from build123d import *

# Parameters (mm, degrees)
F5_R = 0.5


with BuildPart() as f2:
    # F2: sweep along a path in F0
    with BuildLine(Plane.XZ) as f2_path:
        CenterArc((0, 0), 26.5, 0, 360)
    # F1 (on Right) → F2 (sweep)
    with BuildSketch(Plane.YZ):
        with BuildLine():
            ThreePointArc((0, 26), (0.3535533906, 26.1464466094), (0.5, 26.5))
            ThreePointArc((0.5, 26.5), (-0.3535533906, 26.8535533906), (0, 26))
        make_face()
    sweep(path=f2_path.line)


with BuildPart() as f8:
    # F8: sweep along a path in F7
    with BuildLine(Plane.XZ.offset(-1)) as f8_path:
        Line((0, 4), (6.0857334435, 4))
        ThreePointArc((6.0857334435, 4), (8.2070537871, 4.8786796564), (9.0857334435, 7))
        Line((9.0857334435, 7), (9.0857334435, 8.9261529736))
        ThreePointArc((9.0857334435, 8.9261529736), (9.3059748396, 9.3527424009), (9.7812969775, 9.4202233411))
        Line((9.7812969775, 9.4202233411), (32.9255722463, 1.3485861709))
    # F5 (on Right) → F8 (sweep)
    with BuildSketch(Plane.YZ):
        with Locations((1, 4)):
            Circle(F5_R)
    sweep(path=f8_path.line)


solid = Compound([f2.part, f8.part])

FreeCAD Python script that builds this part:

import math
import FreeCAD as App
import Part
import Sketcher

doc = App.newDocument("Part")
body = doc.addObject("PartDesign::Body", "Body")

# Sketch on YZ plane
sketch1 = doc.addObject("Sketcher::SketchObject", "Sketch")
body.addObject(sketch1)
sketch1.AttachmentSupport = (doc.YZ_Plane, [""])
sketch1.MapMode = "FlatFace"
sketch1.addGeometry([
    Part.ArcOfCircle(Part.Circle(App.Vector(0, 26.5, 0), App.Vector(0, 0, 1), 0.5), math.radians(-90), math.radians(0)),
    Part.ArcOfCircle(Part.Circle(App.Vector(0, 26.5, 0), App.Vector(0, 0, 1), 0.5), math.radians(0), math.radians(270)),
], False)
sketch1.addConstraint([
    Sketcher.Constraint("Tangent", 0, 1, 1, 2),
    Sketcher.Constraint("Coincident", 1, 1, 0, 2),
    Sketcher.Constraint("PointOnObject", 0, 3, -2),
    Sketcher.Constraint("PointOnObject", 0, 1, -2),
    Sketcher.Constraint("Horizontal", 0, 3, 1, 1),
    Sketcher.Constraint("Radius", 0, 0.5),
    Sketcher.Constraint("DistanceY", -1, 1, 0, 1, 26.0),
])

# Sketch on XZ plane
sketch2 = doc.addObject("Sketcher::SketchObject", "Sketch001")
body.addObject(sketch2)
sketch2.AttachmentSupport = (doc.XZ_Plane, [""])
sketch2.MapMode = "FlatFace"
sketch2.addGeometry(Part.Circle(App.Vector(0, 0, 0), App.Vector(0, 0, 1), 26.5), False)
sketch2.addConstraint([
    Sketcher.Constraint("Coincident", 0, 3, -1, 1),
    Sketcher.Constraint("Diameter", 0, 53.0),
])
doc.recompute()

additivepipe = doc.addObject("PartDesign::AdditivePipe", "AdditivePipe")
body.addObject(additivepipe)
additivepipe.Profile = sketch1
additivepipe.Spine = (sketch2, ["Edge1"])
body2 = doc.addObject("PartDesign::Body", "Body001")

# Sketch on YZ plane
sketch3 = doc.addObject("Sketcher::SketchObject", "Sketch002")
body2.addObject(sketch3)
sketch3.AttachmentSupport = (doc.getObject("YZ_Plane001"), [""])
sketch3.MapMode = "FlatFace"
sketch3.addGeometry(Part.Circle(App.Vector(1, 4, 0), App.Vector(0, 0, 1), 0.5), False)
sketch3.addConstraint([
    Sketcher.Constraint("Diameter", 0, 1.0),
    Sketcher.Constraint("DistanceX", -1, 1, 0, 3, 1.0),
    Sketcher.Constraint("DistanceY", -1, 1, 0, 3, 4.0),
])

# Sketch on XZ plane
sketch4 = doc.addObject("Sketcher::SketchObject", "Sketch003")
body2.addObject(sketch4)
sketch4.AttachmentSupport = (doc.getObject("XZ_Plane001"), [""])
sketch4.MapMode = "FlatFace"
sketch4.AttachmentOffset = App.Placement(App.Vector(0, 0, -1), App.Rotation())
sketch4.addGeometry([
    Part.LineSegment(App.Vector(0, 4, 0), App.Vector(6.085733, 4, 0)),  # 0
    Part.ArcOfCircle(Part.Circle(App.Vector(6.085733, 7, 0), App.Vector(0, 0, 1), 3), math.radians(-90), math.radians(0)),  # 1
    Part.LineSegment(App.Vector(9.085733, 7, 0), App.Vector(9.085733, 8.926153, 0)),  # 2
    Part.ArcOfCircle(Part.Circle(App.Vector(9.608988, 8.926153, 0), App.Vector(0, 0, 1), 0.523255), math.radians(70.773625), math.radians(180)),  # 3
    Part.LineSegment(App.Vector(9.781297, 9.420223, 0), App.Vector(32.925572, 1.348586, 0)),  # 4
], False)
sketch4.addConstraint([
    Sketcher.Constraint("Coincident", 0, 2, 1, 1),
    Sketcher.Constraint("Coincident", 1, 2, 2, 1),
    Sketcher.Constraint("Coincident", 2, 2, 3, 2),
    Sketcher.Constraint("Coincident", 3, 1, 4, 1),
    Sketcher.Constraint("Horizontal", 0),
    Sketcher.Constraint("Vertical", 2),
    Sketcher.Constraint("PointOnObject", 0, 1, -2),
    Sketcher.Constraint("Radius", 1, 3.0),
    Sketcher.Constraint("DistanceY", -1, 1, 1, 3, 7.0),
    Sketcher.Constraint("DistanceY", -1, 1, 1, 2, 7.0),
    Sketcher.Constraint("DistanceX", 0, 2, 1, 2, 3.0),
    Sketcher.Constraint("Radius", 3, 0.523255),
    Sketcher.Constraint("Distance", 4, 24.511402),
    Sketcher.Constraint("DistanceX", 0, 1, 0, 2, 6.085733),
    Sketcher.Constraint("DistanceY", 2, 1, 2, 2, 1.926153),
    Sketcher.Constraint("DistanceX", 3, 3, 3, 1, 0.172309),
    Sketcher.Constraint("DistanceY", 2, 2, 3, 1, 0.49407),
    Sketcher.Constraint("DistanceX", 1, 2, 4, 2, 23.839839),
])
doc.recompute()

additivepipe2 = doc.addObject("PartDesign::AdditivePipe", "AdditivePipe001")
body2.addObject(additivepipe2)
additivepipe2.Profile = sketch3
additivepipe2.Spine = (sketch4, ["Edge1", "Edge2", "Edge3", "Edge4", "Edge5"])

doc.recompute()
